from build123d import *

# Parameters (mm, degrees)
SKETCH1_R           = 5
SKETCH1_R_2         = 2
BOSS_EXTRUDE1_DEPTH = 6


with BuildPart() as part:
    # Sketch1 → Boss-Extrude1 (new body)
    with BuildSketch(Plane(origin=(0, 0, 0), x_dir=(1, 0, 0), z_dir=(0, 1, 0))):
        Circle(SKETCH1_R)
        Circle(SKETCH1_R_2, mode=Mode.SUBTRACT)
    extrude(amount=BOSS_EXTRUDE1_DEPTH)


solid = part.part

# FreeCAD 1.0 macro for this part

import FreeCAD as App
import Part
import Sketcher
Q = App.Units.Quantity

doc = App.newDocument("Part")
params = doc.addObject("Spreadsheet::Sheet", "Params")
for row, (alias, value) in enumerate([
    ("sketch1_diameter", "10 mm"),
    ("sketch1_diameter2", "4 mm"),
    ("pad1_length", "6 mm"),
], start=1):
    params.set(f"A{row}", alias)
    params.set(f"B{row}", "=" + value)
    params.setAlias(f"B{row}", alias)

body = doc.addObject("PartDesign::Body", "Body")

sketch1 = body.newObject("Sketcher::SketchObject", "Sketch")
sketch1.AttachmentSupport = (doc.getObject("XZ_Plane"), [""])
sketch1.MapMode = "FlatFace"
sketch1.addGeometry([
    Part.Circle(App.Vector(0, 0, 0), App.Vector(0, 0, 1), 5),
    Part.Circle(App.Vector(0, 0, 0), App.Vector(0, 0, 1), 2),
], False)
sketch1.addConstraint([
    Sketcher.Constraint("Coincident", 0, 3, -1, 1),
    Sketcher.Constraint("Coincident", 1, 3, -1, 1),
    Sketcher.Constraint("Diameter", 0, Q("10 mm")),
    Sketcher.Constraint("Diameter", 1, Q("4 mm")),
])
sketch1.setExpression("Constraints[2]", "Params.sketch1_diameter")
sketch1.setExpression("Constraints[3]", "Params.sketch1_diameter2")
pad1 = body.newObject("PartDesign::Pad", "Pad")
pad1.Profile = sketch1
pad1.setExpression("Length", "Params.pad1_length")
pad1.Reversed = True

doc.recompute()
